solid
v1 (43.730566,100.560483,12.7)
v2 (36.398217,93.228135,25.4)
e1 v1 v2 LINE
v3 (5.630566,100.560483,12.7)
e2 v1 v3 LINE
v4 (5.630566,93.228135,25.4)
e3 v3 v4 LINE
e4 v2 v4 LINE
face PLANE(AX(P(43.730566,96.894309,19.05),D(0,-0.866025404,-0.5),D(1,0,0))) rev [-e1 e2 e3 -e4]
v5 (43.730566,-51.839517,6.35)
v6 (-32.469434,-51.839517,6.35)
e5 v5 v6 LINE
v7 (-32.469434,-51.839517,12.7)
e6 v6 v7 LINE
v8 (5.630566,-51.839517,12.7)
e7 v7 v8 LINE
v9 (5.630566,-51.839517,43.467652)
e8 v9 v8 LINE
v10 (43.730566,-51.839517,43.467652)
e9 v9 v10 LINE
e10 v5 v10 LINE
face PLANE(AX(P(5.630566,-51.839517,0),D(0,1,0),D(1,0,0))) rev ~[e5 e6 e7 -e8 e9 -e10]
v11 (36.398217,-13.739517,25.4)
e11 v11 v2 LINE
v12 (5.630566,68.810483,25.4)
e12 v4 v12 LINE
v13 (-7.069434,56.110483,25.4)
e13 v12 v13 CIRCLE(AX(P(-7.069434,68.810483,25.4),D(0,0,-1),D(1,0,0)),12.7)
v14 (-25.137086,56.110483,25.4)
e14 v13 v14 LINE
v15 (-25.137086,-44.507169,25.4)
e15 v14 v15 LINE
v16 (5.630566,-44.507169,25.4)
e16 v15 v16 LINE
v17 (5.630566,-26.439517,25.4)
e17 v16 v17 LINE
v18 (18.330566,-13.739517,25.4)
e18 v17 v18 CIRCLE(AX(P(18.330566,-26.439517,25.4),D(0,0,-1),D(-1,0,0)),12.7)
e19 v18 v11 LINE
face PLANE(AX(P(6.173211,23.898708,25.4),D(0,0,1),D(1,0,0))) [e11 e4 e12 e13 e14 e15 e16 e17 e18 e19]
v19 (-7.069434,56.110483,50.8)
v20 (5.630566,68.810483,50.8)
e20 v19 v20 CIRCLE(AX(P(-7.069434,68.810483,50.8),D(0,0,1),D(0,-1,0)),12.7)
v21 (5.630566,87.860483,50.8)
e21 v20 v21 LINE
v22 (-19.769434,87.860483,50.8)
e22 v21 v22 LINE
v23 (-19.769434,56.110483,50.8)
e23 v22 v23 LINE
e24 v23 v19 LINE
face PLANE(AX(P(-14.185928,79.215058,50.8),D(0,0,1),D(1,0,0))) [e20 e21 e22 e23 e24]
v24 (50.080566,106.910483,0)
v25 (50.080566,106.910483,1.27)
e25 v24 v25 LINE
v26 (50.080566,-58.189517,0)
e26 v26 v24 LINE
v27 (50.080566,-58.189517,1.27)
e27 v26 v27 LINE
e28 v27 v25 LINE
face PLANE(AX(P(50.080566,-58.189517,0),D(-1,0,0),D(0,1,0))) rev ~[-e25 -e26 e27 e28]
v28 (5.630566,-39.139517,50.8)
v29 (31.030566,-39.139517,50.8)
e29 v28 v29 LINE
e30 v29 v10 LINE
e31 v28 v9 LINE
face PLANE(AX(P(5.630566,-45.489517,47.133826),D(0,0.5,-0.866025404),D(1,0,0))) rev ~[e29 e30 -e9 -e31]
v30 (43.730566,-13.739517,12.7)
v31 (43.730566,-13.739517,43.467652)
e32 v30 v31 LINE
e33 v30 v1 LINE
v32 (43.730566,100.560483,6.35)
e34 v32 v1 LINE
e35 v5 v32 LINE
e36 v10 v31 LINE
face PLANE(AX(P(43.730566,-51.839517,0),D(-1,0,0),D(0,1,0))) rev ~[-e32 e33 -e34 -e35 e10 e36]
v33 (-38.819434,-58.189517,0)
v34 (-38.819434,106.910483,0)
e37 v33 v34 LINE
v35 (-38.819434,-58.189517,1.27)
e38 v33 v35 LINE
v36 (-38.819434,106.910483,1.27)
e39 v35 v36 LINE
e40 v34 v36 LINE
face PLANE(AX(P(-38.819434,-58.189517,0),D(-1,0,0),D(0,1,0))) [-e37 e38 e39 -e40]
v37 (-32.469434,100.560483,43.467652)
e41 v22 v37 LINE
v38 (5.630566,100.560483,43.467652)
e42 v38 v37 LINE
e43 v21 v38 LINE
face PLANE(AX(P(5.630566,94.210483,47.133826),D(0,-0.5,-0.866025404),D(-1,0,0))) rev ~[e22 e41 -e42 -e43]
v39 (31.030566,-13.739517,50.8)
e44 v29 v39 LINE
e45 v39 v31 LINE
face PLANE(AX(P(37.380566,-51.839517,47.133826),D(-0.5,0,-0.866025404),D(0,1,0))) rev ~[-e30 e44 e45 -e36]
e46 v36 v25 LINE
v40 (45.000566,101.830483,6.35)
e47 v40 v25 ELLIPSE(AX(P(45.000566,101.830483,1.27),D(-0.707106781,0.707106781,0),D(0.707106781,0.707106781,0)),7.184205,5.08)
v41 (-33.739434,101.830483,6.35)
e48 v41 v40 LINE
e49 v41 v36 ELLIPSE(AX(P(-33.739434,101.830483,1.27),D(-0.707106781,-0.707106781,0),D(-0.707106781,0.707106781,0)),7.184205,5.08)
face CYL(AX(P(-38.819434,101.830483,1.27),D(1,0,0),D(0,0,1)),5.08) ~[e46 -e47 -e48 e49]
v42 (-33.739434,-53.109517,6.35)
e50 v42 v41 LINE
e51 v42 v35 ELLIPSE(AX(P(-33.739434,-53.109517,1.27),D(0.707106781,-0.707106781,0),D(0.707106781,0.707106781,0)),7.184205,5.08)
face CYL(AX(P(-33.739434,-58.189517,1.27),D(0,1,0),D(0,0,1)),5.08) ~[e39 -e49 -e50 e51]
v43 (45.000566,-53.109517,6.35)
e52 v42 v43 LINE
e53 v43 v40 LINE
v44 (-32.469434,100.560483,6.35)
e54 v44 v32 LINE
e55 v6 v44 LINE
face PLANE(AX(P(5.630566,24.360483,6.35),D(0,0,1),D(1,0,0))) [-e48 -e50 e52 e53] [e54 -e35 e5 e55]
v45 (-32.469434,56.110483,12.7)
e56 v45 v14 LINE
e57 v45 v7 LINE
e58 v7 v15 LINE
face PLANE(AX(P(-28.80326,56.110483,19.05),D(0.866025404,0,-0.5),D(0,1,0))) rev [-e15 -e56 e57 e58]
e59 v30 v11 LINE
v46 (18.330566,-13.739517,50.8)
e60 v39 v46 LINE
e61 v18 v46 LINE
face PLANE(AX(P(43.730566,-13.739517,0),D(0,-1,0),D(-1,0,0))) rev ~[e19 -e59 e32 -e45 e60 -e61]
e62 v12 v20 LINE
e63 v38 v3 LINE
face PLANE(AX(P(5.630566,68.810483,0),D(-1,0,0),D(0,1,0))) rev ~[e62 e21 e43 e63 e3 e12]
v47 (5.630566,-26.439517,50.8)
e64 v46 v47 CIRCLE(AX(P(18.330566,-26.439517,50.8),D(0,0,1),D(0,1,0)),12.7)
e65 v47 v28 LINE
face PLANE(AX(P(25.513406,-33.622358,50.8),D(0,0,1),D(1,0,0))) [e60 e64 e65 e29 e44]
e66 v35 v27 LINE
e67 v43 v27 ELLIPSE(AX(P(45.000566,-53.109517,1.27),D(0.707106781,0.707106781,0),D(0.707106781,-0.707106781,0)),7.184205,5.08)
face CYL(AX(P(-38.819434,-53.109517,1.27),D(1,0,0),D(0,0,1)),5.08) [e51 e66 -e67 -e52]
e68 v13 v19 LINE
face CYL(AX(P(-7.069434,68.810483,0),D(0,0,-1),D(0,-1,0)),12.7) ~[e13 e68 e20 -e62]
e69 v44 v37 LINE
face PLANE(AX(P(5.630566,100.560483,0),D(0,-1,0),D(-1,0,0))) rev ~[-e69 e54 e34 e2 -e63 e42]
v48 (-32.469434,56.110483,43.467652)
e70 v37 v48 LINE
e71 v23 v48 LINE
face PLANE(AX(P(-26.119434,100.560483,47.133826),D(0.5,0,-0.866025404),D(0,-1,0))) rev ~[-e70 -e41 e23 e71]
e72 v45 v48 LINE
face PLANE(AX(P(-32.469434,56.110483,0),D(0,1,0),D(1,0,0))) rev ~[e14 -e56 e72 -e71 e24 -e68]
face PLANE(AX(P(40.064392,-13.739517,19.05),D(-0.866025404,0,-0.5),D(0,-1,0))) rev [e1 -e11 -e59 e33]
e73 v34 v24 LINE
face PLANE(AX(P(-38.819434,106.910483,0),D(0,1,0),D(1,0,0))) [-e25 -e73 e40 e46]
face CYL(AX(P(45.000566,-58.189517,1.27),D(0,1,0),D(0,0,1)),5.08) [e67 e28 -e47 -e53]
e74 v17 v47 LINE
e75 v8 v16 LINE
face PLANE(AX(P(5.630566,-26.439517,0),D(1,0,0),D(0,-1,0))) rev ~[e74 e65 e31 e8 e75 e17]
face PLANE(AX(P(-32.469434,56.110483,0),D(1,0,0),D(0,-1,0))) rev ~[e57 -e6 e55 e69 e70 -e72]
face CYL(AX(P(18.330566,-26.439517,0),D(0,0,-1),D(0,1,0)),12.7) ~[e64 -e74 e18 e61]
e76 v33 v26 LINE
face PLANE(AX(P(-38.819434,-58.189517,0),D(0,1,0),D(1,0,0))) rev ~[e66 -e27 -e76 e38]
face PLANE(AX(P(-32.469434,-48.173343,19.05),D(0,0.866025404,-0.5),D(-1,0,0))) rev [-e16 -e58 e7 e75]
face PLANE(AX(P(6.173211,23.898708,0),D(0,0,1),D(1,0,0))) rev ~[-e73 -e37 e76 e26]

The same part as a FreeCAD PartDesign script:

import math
import FreeCAD as App
import Part
import Sketcher

V = App.Vector
Q = App.Units.Quantity


def edges_at(feature, points):
    """Names of the edges that pass closest to the given points."""
    edges = feature.Shape.Edges
    near = lambda p: min(range(len(edges)), key=lambda i: edges[i].distToShape(Part.Vertex(*p))[0])
    return sorted({f"Edge{near(p) + 1}" for p in points})


def add_polygon(sketch, points):
    """Adds a closed chain of lines whose ends are joined by coincident constraints."""
    first, n = sketch.GeometryCount, len(points)
    for a, b in zip(points, points[1:] + points[:1]):
        sketch.addGeometry(Part.LineSegment(App.Vector(*a, 0), App.Vector(*b, 0)), False)
    for i in range(n):
        sketch.addConstraint(Sketcher.Constraint("Coincident", first + i, 2, first + (i + 1) % n, 1))

doc = App.newDocument("Part")
params = doc.addObject("Spreadsheet::Sheet", "Params")
for row, (alias, value) in enumerate([
    ("sketch1_width", "3 in"),
    ("sketch1_height", "6 in"),
    ("sketch1_width2", "3.5 in"),
    ("sketch1_height2", "6.5 in"),
    ("pad1_length", "0.25 in"),
    ("sketch2_radius", "0.5 in"),
    ("sketch2_width", "1 in"),
    ("sketch2_height", "4.5 in"),
    ("sketch2_height2", "1.25 in"),
    ("pad2_length", "1 in"),
    ("sketch3_radius", "0.5 in"),
    ("sketch3_width", "1 in"),
    ("sketch3_height", "1.75 in"),
    ("pad3_length", "2 in"),
    ("fillet_radius", "0.2 in"),
    ("chamfer_size", "0.5 in"),
    ("chamfer_size2", "7.332348 mm"),
    ("chamfer2_size", "0.5 in"),
    ("chamfer2_size2", "7.332348 mm"),
    ("chamfer3_size", "0.5 in"),
    ("chamfer3_size2", "7.332348 mm"),
], start=1):
    params.set(f"A{row}", alias)
    params.set(f"B{row}", "=" + value)
    params.setAlias(f"B{row}", alias)

body = doc.addObject("PartDesign::Body", "Body")

sketch1 = body.newObject("Sketcher::SketchObject", "Sketch")
sketch1.AttachmentSupport = (doc.getObject("XY_Plane"), [""])
sketch1.MapMode = "FlatFace"
add_polygon(sketch1, [(-38.819434, 106.910483), (-38.819434, -58.189517), (50.080566, -58.189517), (50.080566, 106.910483)])
add_polygon(sketch1, [(-32.469434, -51.839517), (-32.469434, 100.560483), (43.730566, 100.560483), (43.730566, -51.839517)])
sketch1.addConstraint(Sketcher.Constraint("Vertical", 0))
sketch1.addConstraint(Sketcher.Constraint("Horizontal", 1))
sketch1.addConstraint(Sketcher.Constraint("Vertical", 2))
sketch1.addConstraint(Sketcher.Constraint("Horizontal", 3))
sketch1.addConstraint(Sketcher.Constraint("Vertical", 4))
sketch1.addConstraint(Sketcher.Constraint("Horizontal", 5))
sketch1.addConstraint(Sketcher.Constraint("Vertical", 6))
sketch1.addConstraint(Sketcher.Constraint("Horizontal", 7))
sketch1.addConstraint(Sketcher.Constraint("DistanceX", 5, 1, 5, 2, Q("3 in")))
sketch1.addConstraint(Sketcher.Constraint("DistanceY", 4, 1, 4, 2, Q("6 in")))
sketch1.addConstraint(Sketcher.Constraint("DistanceX", 1, 1, 1, 2, Q("3.5 in")))
sketch1.addConstraint(Sketcher.Constraint("DistanceY", 0, 2, 0, 1, Q("6.5 in")))
sketch1.addConstraint(Sketcher.Constraint("DistanceX", 3, 2, 4, 2, Q("0.25 in")))
sketch1.addConstraint(Sketcher.Constraint("DistanceY", 4, 2, 3, 2, Q("0.25 in")))
sketch1.addConstraint(Sketcher.Constraint("DistanceX", 0, 2, -1, 1, Q("38.819434 mm")))
sketch1.addConstraint(Sketcher.Constraint("DistanceY", 0, 2, -1, 1, Q("58.189517 mm")))
sketch1.setExpression("Constraints[16]", "Params.sketch1_width")
sketch1.setExpression("Constraints[17]", "Params.sketch1_height")
sketch1.setExpression("Constraints[18]", "Params.sketch1_width2")
sketch1.setExpression("Constraints[19]", "Params.sketch1_height2")
pad1 = body.newObject("PartDesign::Pad", "Pad")
pad1.Profile = sketch1
pad1.setExpression("Length", "Params.pad1_length")

sketch2 = body.newObject("Sketcher::SketchObject", "Sketch001")
sketch2.AttachmentSupport = (doc.getObject("XY_Plane"), [""])
sketch2.MapMode = "FlatFace"
sketch2.addGeometry(Part.LineSegment(V(43.730566, 100.560483, 0), V(5.630566, 100.560483, 0)), False)
sketch2.addGeometry(Part.LineSegment(V(5.630566, 100.560483, 0), V(5.630566, 68.810483, 0)), False)
sketch2.addGeometry(Part.ArcOfCircle(Part.Circle(V(-7.069434, 68.810483, 0), V(0, 0, 1), 12.7), math.radians(-90), math.radians(0)), False)
sketch2.addGeometry(Part.LineSegment(V(-7.069434, 56.110483, 0), V(-32.469434, 56.110483, 0)), False)
sketch2.addGeometry(Part.LineSegment(V(-32.469434, 56.110483, 0), V(-32.469434, -51.839517, 0)), False)
sketch2.addGeometry(Part.LineSegment(V(-32.469434, -51.839517, 0), V(5.630566, -51.839517, 0)), False)
sketch2.addGeometry(Part.LineSegment(V(5.630566, -51.839517, 0), V(5.630566, -26.439517, 0)), False)
sketch2.addGeometry(Part.ArcOfCircle(Part.Circle(V(18.330566, -26.439517, 0), V(0, 0, 1), 12.7), math.radians(90), math.radians(180)), False)
sketch2.addGeometry(Part.LineSegment(V(18.330566, -13.739517, 0), V(43.730566, -13.739517, 0)), False)
sketch2.addGeometry(Part.LineSegment(V(43.730566, -13.739517, 0), V(43.730566, 100.560483, 0)), False)
sketch2.addConstraint(Sketcher.Constraint("Coincident", 0, 2, 1, 1))
sketch2.addConstraint(Sketcher.Constraint("Tangent", 1, 2, 2, 2))
sketch2.addConstraint(Sketcher.Constraint("Tangent", 2, 1, 3, 1))
sketch2.addConstraint(Sketcher.Constraint("Coincident", 3, 2, 4, 1))
sketch2.addConstraint(Sketcher.Constraint("Coincident", 4, 2, 5, 1))
sketch2.addConstraint(Sketcher.Constraint("Coincident", 5, 2, 6, 1))
sketch2.addConstraint(Sketcher.Constraint("Tangent", 6, 2, 7, 2))
sketch2.addConstraint(Sketcher.Constraint("Tangent", 7, 1, 8, 1))
sketch2.addConstraint(Sketcher.Constraint("Coincident", 8, 2, 9, 1))
sketch2.addConstraint(Sketcher.Constraint("Coincident", 9, 2, 0, 1))
sketch2.addConstraint(Sketcher.Constraint("Horizontal", 0))
sketch2.addConstraint(Sketcher.Constraint("Vertical", 1))
sketch2.addConstraint(Sketcher.Constraint("Horizontal", 3))
sketch2.addConstraint(Sketcher.Constraint("Vertical", 4))
sketch2.addConstraint(Sketcher.Constraint("Horizontal", 5))
sketch2.addConstraint(Sketcher.Constraint("Vertical", 6))
sketch2.addConstraint(Sketcher.Constraint("Horizontal", 8))
sketch2.addConstraint(Sketcher.Constraint("Vertical", 9))
sketch2.addConstraint(Sketcher.Constraint("Equal", 2, 7))
sketch2.addConstraint(Sketcher.Constraint("Vertical", 1, 2, 5, 2))
sketch2.addConstraint(Sketcher.Constraint("Equal", 0, 5))
sketch2.addConstraint(Sketcher.Constraint("Equal", 8, 6))
sketch2.addConstraint(Sketcher.Constraint("Radius", 2, Q("0.5 in")))
sketch2.addConstraint(Sketcher.Constraint("DistanceX", 3, 2, 3, 1, Q("1 in")))
sketch2.addConstraint(Sketcher.Constraint("DistanceY", 9, 1, 9, 2, Q("4.5 in")))
sketch2.addConstraint(Sketcher.Constraint("DistanceY", 1, 2, 1, 1, Q("1.25 in")))
sketch2.addConstraint(Sketcher.Constraint("DistanceX", 2, 3, -1, 1, Q("7.069434 mm")))
sketch2.addConstraint(Sketcher.Constraint("DistanceY", -1, 1, 2, 3, Q("68.810483 mm")))
sketch2.setExpression("Constraints[22]", "Params.sketch2_radius")
sketch2.setExpression("Constraints[23]", "Params.sketch2_width")
sketch2.setExpression("Constraints[24]", "Params.sketch2_height")
sketch2.setExpression("Constraints[25]", "Params.sketch2_height2")
pad2 = body.newObject("PartDesign::Pad", "Pad001")
pad2.Profile = sketch2
pad2.setExpression("Length", "Params.pad2_length")

sketch3 = body.newObject("Sketcher::SketchObject", "Sketch002")
sketch3.AttachmentSupport = (doc.getObject("XY_Plane"), [""])
sketch3.MapMode = "FlatFace"
sketch3.addGeometry(Part.LineSegment(V(43.730566, -51.839517, 0), V(43.730566, -13.739517, 0)), False)
sketch3.addGeometry(Part.LineSegment(V(43.730566, -13.739517, 0), V(18.330566, -13.739517, 0)), False)
sketch3.addGeometry(Part.ArcOfCircle(Part.Circle(V(18.330566, -26.439517, 0), V(0, 0, 1), 12.7), math.radians(90), math.radians(180)), False)
sketch3.addGeometry(Part.LineSegment(V(5.630566, -26.439517, 0), V(5.630566, -51.839517, 0)), False)
sketch3.addGeometry(Part.LineSegment(V(5.630566, -51.839517, 0), V(43.730566, -51.839517, 0)), False)
sketch3.addGeometry(Part.LineSegment(V(5.630566, 100.560483, 0), V(-32.469434, 100.560483, 0)), False)
sketch3.addGeometry(Part.LineSegment(V(-32.469434, 100.560483, 0), V(-32.469434, 56.110483, 0)), False)
sketch3.addGeometry(Part.LineSegment(V(-32.469434, 56.110483, 0), V(-7.069434, 56.110483, 0)), False)
sketch3.addGeometry(Part.ArcOfCircle(Part.Circle(V(-7.069434, 68.810483, 0), V(0, 0, 1), 12.7), math.radians(-90), math.radians(0)), False)
sketch3.addGeometry(Part.LineSegment(V(5.630566, 68.810483, 0), V(5.630566, 100.560483, 0)), False)
sketch3.addConstraint(Sketcher.Constraint("Coincident", 0, 2, 1, 1))
sketch3.addConstraint(Sketcher.Constraint("Tangent", 1, 2, 2, 1))
sketch3.addConstraint(Sketcher.Constraint("Tangent", 2, 2, 3, 1))
sketch3.addConstraint(Sketcher.Constraint("Coincident", 3, 2, 4, 1))
sketch3.addConstraint(Sketcher.Constraint("Coincident", 4, 2, 0, 1))
sketch3.addConstraint(Sketcher.Constraint("Coincident", 5, 2, 6, 1))
sketch3.addConstraint(Sketcher.Constraint("Coincident", 6, 2, 7, 1))
sketch3.addConstraint(Sketcher.Constraint("Tangent", 7, 2, 8, 1))
sketch3.addConstraint(Sketcher.Constraint("Tangent", 8, 2, 9, 1))
sketch3.addConstraint(Sketcher.Constraint("Coincident", 9, 2, 5, 1))
sketch3.addConstraint(Sketcher.Constraint("Vertical", 0))
sketch3.addConstraint(Sketcher.Constraint("Horizontal", 1))
sketch3.addConstraint(Sketcher.Constraint("Vertical", 3))
sketch3.addConstraint(Sketcher.Constraint("Horizontal", 4))
sketch3.addConstraint(Sketcher.Constraint("Horizontal", 5))
sketch3.addConstraint(Sketcher.Constraint("Vertical", 6))
sketch3.addConstraint(Sketcher.Constraint("Horizontal", 7))
sketch3.addConstraint(Sketcher.Constraint("Vertical", 9))
sketch3.addConstraint(Sketcher.Constraint("Equal", 2, 8))
sketch3.addConstraint(Sketcher.Constraint("Vertical", 3, 2, 8, 2))
sketch3.addConstraint(Sketcher.Constraint("Equal", 4, 5))
sketch3.addConstraint(Sketcher.Constraint("Equal", 5, 0))
sketch3.addConstraint(Sketcher.Constraint("Radius", 2, Q("0.5 in")))
sketch3.addConstraint(Sketcher.Constraint("DistanceX", 1, 2, 1, 1, Q("1 in")))
sketch3.addConstraint(Sketcher.Constraint("DistanceY", 2, 2, 5, 2, Q("5 in")))
sketch3.addConstraint(Sketcher.Constraint("DistanceY", 6, 2, 6, 1, Q("1.75 in")))
sketch3.addConstraint(Sketcher.Constraint("DistanceX", -1, 1, 2, 3, Q("18.330566 mm")))
sketch3.addConstraint(Sketcher.Constraint("DistanceY", 2, 3, -1, 1, Q("26.439517 mm")))
sketch3.setExpression("Constraints[22]", "Params.sketch3_radius")
sketch3.setExpression("Constraints[23]", "Params.sketch3_width")
sketch3.setExpression("Constraints[25]", "Params.sketch3_height")
pad3 = body.newObject("PartDesign::Pad", "Pad002")
pad3.Profile = sketch3
pad3.setExpression("Length", "Params.pad3_length")
doc.recompute()

fillet = body.newObject("PartDesign::Fillet", "Fillet")
fillet.Base = (pad3, edges_at(pad3, [
    (-38.819, 24.36, 6.35),
    (5.631, -58.19, 6.35),
    (50.081, 24.36, 6.35),
    (5.631, 106.91, 6.35),
]))
fillet.setExpression("Radius", "Params.fillet_radius")
doc.recompute()

chamfer = body.newObject("PartDesign::Chamfer", "Chamfer")
chamfer.Base = (fillet, edges_at(fillet, [
    (43.731, 43.41, 25.4),
    (24.681, 100.56, 25.4),
    (-32.469, 2.135, 25.4),
    (-13.419, -51.84, 25.4),
]))
chamfer.ChamferType = "Two distances"
chamfer.setExpression("Size", "Params.chamfer_size")
chamfer.setExpression("Size2", "Params.chamfer_size2")
doc.recompute()

chamfer2 = body.newObject("PartDesign::Chamfer", "Chamfer001")
chamfer2.Base = (chamfer, edges_at(chamfer, [(24.681, -51.84, 50.8), (43.731, -32.79, 50.8)]))
chamfer2.ChamferType = "Two distances"
chamfer2.setExpression("Size", "Params.chamfer2_size")
chamfer2.setExpression("Size2", "Params.chamfer2_size2")
chamfer2.FlipDirection = True
doc.recompute()

chamfer3 = body.newObject("PartDesign::Chamfer", "Chamfer002")
chamfer3.Base = (chamfer2, edges_at(chamfer2, [(-32.469, 78.335, 50.8), (-13.419, 100.56, 50.8)]))
chamfer3.ChamferType = "Two distances"
chamfer3.setExpression("Size", "Params.chamfer3_size")
chamfer3.setExpression("Size2", "Params.chamfer3_size2")
chamfer3.FlipDirection = True

doc.recompute()
